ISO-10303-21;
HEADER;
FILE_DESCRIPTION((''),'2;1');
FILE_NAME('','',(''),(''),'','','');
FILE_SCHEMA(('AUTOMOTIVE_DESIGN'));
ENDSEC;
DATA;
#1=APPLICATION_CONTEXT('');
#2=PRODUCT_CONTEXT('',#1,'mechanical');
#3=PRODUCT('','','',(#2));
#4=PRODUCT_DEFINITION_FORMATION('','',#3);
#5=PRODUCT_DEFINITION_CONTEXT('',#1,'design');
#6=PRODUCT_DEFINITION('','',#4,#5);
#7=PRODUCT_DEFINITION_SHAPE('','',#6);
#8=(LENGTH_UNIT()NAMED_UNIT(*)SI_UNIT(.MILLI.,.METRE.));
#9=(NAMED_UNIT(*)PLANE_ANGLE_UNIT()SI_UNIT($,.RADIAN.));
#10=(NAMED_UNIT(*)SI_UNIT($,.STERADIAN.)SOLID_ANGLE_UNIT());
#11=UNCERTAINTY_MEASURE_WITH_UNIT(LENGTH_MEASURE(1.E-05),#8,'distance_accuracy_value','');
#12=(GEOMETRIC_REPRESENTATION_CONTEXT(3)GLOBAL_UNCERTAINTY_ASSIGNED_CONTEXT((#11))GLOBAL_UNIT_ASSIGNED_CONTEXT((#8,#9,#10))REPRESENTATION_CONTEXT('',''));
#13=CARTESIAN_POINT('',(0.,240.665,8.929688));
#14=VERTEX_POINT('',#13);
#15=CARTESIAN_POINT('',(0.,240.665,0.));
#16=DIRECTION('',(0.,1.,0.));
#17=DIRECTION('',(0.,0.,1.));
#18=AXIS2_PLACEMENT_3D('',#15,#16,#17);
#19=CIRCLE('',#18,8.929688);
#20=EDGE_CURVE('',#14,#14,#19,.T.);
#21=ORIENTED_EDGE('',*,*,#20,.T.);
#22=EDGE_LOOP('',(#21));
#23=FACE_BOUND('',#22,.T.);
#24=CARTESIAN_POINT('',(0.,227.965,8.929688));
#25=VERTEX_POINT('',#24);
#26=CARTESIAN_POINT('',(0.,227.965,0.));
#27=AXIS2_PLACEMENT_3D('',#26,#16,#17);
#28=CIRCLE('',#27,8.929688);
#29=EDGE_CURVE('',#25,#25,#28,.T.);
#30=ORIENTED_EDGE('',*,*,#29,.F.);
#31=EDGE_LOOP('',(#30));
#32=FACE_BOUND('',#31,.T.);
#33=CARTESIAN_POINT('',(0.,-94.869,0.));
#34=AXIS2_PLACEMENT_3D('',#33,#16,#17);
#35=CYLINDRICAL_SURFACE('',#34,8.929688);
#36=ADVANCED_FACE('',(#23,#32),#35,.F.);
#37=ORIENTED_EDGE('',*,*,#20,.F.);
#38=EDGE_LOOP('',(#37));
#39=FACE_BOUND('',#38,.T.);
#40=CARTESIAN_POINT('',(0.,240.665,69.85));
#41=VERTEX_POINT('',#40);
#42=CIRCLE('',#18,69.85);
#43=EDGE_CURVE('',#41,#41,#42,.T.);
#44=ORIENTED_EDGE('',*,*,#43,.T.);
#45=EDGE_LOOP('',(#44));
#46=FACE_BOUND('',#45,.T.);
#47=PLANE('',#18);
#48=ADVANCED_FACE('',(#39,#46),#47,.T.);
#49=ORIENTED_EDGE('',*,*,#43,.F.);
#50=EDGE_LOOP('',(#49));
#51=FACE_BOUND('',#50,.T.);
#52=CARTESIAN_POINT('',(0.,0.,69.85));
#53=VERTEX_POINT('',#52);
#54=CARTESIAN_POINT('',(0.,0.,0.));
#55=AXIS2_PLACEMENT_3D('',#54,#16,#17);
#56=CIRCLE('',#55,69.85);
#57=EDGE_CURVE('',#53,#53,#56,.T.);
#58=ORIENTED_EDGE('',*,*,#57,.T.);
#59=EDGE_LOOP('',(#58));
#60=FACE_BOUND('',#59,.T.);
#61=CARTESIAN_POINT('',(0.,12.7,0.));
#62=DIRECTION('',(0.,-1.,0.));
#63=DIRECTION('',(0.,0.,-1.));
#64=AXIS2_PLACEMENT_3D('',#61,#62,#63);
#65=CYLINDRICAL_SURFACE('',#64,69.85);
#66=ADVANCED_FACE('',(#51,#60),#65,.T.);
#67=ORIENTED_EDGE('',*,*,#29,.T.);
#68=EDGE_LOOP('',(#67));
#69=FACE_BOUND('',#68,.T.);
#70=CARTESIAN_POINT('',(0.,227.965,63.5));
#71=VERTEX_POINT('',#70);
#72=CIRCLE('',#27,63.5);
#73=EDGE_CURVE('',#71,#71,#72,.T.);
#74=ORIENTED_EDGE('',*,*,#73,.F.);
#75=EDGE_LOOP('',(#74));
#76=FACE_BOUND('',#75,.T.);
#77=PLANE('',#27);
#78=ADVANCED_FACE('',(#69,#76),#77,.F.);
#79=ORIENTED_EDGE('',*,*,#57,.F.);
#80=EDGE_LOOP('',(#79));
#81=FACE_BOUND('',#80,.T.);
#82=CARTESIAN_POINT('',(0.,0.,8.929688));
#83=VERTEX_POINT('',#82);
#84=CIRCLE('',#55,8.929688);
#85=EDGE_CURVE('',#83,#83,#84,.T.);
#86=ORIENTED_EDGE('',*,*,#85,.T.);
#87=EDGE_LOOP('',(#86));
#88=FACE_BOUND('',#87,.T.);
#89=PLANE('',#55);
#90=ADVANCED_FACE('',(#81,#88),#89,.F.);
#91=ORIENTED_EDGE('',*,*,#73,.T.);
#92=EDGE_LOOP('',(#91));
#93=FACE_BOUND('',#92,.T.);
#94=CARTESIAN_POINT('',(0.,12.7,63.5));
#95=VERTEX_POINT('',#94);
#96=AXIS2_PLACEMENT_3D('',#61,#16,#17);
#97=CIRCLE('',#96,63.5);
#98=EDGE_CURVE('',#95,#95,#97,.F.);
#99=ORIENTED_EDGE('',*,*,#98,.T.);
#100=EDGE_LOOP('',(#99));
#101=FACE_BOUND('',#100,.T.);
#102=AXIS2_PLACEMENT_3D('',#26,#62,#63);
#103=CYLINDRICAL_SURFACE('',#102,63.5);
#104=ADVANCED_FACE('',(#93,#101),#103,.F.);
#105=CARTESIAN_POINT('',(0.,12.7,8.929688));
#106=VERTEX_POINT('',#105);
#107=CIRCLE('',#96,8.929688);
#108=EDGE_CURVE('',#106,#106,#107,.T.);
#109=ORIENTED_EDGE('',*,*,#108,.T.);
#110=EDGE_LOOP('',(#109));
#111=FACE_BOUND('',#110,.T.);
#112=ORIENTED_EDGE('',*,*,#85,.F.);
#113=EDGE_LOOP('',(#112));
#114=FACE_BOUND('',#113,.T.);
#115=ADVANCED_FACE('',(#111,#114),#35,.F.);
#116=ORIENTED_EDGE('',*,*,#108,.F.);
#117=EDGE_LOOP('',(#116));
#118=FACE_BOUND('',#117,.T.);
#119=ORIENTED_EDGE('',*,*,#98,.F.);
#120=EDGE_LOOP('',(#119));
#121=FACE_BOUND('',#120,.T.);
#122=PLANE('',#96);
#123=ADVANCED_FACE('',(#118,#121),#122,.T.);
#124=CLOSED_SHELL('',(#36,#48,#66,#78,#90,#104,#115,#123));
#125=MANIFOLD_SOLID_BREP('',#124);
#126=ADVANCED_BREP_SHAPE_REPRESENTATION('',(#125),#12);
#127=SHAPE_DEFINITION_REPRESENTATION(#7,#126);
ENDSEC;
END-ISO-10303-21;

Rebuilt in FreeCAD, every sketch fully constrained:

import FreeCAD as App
import Part
import Sketcher
Q = App.Units.Quantity

doc = App.newDocument("Part")
body = doc.addObject("PartDesign::Body", "Body")

# Sketch on XZ plane
sketch1 = body.newObject("Sketcher::SketchObject", "Sketch")
sketch1.AttachmentSupport = (doc.getObject("XZ_Plane"), [""])
sketch1.MapMode = "FlatFace"
sketch1.addGeometry(Part.Circle(App.Vector(0, 0, 0), App.Vector(0, 0, 1), 70), False)
sketch1.addConstraint([
    Sketcher.Constraint("Coincident", 0, 3, -1, 1),
    Sketcher.Constraint("Diameter", 0, Q("5.5 in")),
])
pad1 = body.newObject("PartDesign::Pad", "Pad")
pad1.Profile = sketch1
pad1.Length = Q("0.5 in")
pad1.Reversed = True

# Sketch on XZ plane
sketch2 = body.newObject("Sketcher::SketchObject", "Sketch001")
sketch2.AttachmentSupport = (doc.getObject("XZ_Plane"), [""])
sketch2.MapMode = "FlatFace"
sketch2.addGeometry([
    Part.Circle(App.Vector(0, 0, 0), App.Vector(0, 0, 1), 70),
    Part.Circle(App.Vector(0, 0, 0), App.Vector(0, 0, 1), 64),
], False)
sketch2.addConstraint([
    Sketcher.Constraint("Coincident", 0, 3, -1, 1),
    Sketcher.Constraint("Coincident", 1, 3, -1, 1),
    Sketcher.Constraint("Diameter", 1, Q("5 in")),
    Sketcher.Constraint("Diameter", 0, Q("5.5 in")),
])
pad2 = body.newObject("PartDesign::Pad", "Pad001")
pad2.Profile = sketch2
pad2.Length = Q("8.975 in")
pad2.Reversed = True

# Sketch on XZ plane
sketch3 = body.newObject("Sketcher::SketchObject", "Sketch002")
sketch3.AttachmentSupport = (doc.getObject("XZ_Plane"), [""])
sketch3.MapMode = "FlatFace"
sketch3.AttachmentOffset = App.Placement(App.Vector(0, 0, -8.975 * 25.4), App.Rotation())
sketch3.addGeometry(Part.Circle(App.Vector(0, 0, 0), App.Vector(0, 0, 1), 70), False)
sketch3.addConstraint([
    Sketcher.Constraint("Coincident", 0, 3, -1, 1),
    Sketcher.Constraint("Diameter", 0, Q("5.5 in")),
])
pad3 = body.newObject("PartDesign::Pad", "Pad002")
pad3.Profile = sketch3
pad3.Length = Q("0.5 in")
pad3.Reversed = True

# Sketch on XZ plane
sketch4 = body.newObject("Sketcher::SketchObject", "Sketch003")
sketch4.AttachmentSupport = (doc.getObject("XZ_Plane"), [""])
sketch4.MapMode = "FlatFace"
sketch4.AttachmentOffset = App.Placement(App.Vector(0, 0, -9.475 * 25.4), App.Rotation())
sketch4.addGeometry(Part.Circle(App.Vector(0, 0, 0), App.Vector(0, 0, 1), 9), False)
sketch4.addConstraint([
    Sketcher.Constraint("Coincident", 0, 3, -1, 1),
    Sketcher.Constraint("Diameter", 0, Q("0.703125 in")),
])
pocket1 = body.newObject("PartDesign::Pocket", "Pocket")
pocket1.Profile = sketch4
pocket1.Length = Q("13.21 in")
pocket1.Reversed = True

doc.recompute()
